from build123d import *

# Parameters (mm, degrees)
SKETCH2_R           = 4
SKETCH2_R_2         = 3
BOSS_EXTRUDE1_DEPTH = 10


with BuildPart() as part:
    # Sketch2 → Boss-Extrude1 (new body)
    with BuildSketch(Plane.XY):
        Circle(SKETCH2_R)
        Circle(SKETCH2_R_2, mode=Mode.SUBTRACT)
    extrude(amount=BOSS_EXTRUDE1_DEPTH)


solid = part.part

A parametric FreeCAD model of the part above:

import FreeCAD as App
import Part
import Sketcher

V = App.Vector
Q = App.Units.Quantity

doc = App.newDocument("Part")
params = doc.addObject("Spreadsheet::Sheet", "Params")
for row, (alias, value) in enumerate([
    ("sketch1_diameter", "8 mm"),
    ("sketch1_diameter2", "6 mm"),
    ("pad1_length", "10 mm"),
], start=1):
    params.set(f"A{row}", alias)
    params.set(f"B{row}", "=" + value)
    params.setAlias(f"B{row}", alias)

body = doc.addObject("PartDesign::Body", "Body")

sketch1 = body.newObject("Sketcher::SketchObject", "Sketch")
sketch1.AttachmentSupport = (doc.getObject("XY_Plane"), [""])
sketch1.MapMode = "FlatFace"
sketch1.addGeometry(Part.Circle(V(0, 0, 0), V(0, 0, 1), 4), False)
sketch1.addGeometry(Part.Circle(V(0, 0, 0), V(0, 0, 1), 3), False)
sketch1.addConstraint(Sketcher.Constraint("Coincident", 0, 3, -1, 1))
sketch1.addConstraint(Sketcher.Constraint("Coincident", 1, 3, -1, 1))
sketch1.addConstraint(Sketcher.Constraint("Diameter", 0, Q("8 mm")))
sketch1.addConstraint(Sketcher.Constraint("Diameter", 1, Q("6 mm")))
sketch1.setExpression("Constraints[2]", "Params.sketch1_diameter")
sketch1.setExpression("Constraints[3]", "Params.sketch1_diameter2")
pad1 = body.newObject("PartDesign::Pad", "Pad")
pad1.Profile = sketch1
pad1.setExpression("Length", "Params.pad1_length")

doc.recompute()
